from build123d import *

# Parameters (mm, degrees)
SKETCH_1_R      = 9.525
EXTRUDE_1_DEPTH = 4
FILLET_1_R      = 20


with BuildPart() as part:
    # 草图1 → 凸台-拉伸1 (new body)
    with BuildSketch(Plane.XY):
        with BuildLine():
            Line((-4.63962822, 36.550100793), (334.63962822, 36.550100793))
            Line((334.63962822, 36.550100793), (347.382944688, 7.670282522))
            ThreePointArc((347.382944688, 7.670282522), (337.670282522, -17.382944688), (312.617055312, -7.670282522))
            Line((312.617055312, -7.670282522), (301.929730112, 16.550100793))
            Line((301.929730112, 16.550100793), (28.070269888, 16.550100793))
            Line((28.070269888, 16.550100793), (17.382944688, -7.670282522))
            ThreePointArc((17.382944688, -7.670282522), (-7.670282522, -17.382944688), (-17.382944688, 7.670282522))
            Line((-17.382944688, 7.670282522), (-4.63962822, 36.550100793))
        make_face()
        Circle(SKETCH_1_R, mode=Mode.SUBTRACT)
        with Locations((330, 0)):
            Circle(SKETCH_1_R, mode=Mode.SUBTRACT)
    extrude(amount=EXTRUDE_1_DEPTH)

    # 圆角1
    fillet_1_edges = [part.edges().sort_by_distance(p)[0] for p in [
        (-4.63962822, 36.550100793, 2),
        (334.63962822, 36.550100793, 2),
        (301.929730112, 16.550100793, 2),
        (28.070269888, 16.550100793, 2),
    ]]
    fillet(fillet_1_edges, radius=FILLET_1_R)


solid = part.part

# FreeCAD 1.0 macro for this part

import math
import FreeCAD as App
import Part
import Sketcher
from FreeCAD import Vector


def edges_at(feature, points):
    """Names of the edges that pass closest to the given points."""
    edges = feature.Shape.Edges
    near = lambda p: min(range(len(edges)), key=lambda i: edges[i].distToShape(Part.Vertex(*p))[0])
    return sorted({f"Edge{near(p) + 1}" for p in points})

doc = App.newDocument("Part")
body = doc.addObject("PartDesign::Body", "Body")

sketch1 = body.newObject("Sketcher::SketchObject", "Sketch")
sketch1.AttachmentSupport = (doc.getObject("XY_Plane"), [""])
sketch1.MapMode = "FlatFace"
sketch1.addGeometry(Part.LineSegment(Vector(334.639628, 36.550101, 0), Vector(-4.639628, 36.550101, 0)), False)
sketch1.addGeometry(Part.LineSegment(Vector(-4.639628, 36.550101, 0), Vector(-17.382945, 7.670283, 0)), False)
sketch1.addGeometry(Part.ArcOfCircle(Part.Circle(Vector(0, 0, 0), Vector(0, 0, 1), 19), math.radians(156.19037), math.radians(336.19037)), False)
sketch1.addGeometry(Part.LineSegment(Vector(17.382945, -7.670283, 0), Vector(28.07027, 16.550101, 0)), False)
sketch1.addGeometry(Part.LineSegment(Vector(28.07027, 16.550101, 0), Vector(301.92973, 16.550101, 0)), False)
sketch1.addGeometry(Part.LineSegment(Vector(301.92973, 16.550101, 0), Vector(312.617055, -7.670283, 0)), False)
sketch1.addGeometry(Part.ArcOfCircle(Part.Circle(Vector(330, 0, 0), Vector(0, 0, 1), 19), math.radians(-156.19037), math.radians(23.80963)), False)
sketch1.addGeometry(Part.LineSegment(Vector(347.382945, 7.670283, 0), Vector(334.639628, 36.550101, 0)), False)
sketch1.addGeometry(Part.Circle(Vector(330, 0, 0), Vector(0, 0, 1), 9.525), False)
sketch1.addGeometry(Part.Circle(Vector(0, 0, 0), Vector(0, 0, 1), 9.525), False)
sketch1.addConstraint(Sketcher.Constraint("Coincident", 0, 2, 1, 1))
sketch1.addConstraint(Sketcher.Constraint("Tangent", 1, 2, 2, 1))
sketch1.addConstraint(Sketcher.Constraint("Tangent", 2, 2, 3, 1))
sketch1.addConstraint(Sketcher.Constraint("Coincident", 3, 2, 4, 1))
sketch1.addConstraint(Sketcher.Constraint("Coincident", 4, 2, 5, 1))
sketch1.addConstraint(Sketcher.Constraint("Tangent", 5, 2, 6, 1))
sketch1.addConstraint(Sketcher.Constraint("Tangent", 6, 2, 7, 1))
sketch1.addConstraint(Sketcher.Constraint("Coincident", 7, 2, 0, 1))
sketch1.addConstraint(Sketcher.Constraint("Horizontal", 0))
sketch1.addConstraint(Sketcher.Constraint("Horizontal", 4))
sketch1.addConstraint(Sketcher.Constraint("Coincident", 2, 3, -1, 1))
sketch1.addConstraint(Sketcher.Constraint("Coincident", 9, 3, -1, 1))
sketch1.addConstraint(Sketcher.Constraint("Coincident", 8, 3, 6, 3))
sketch1.addConstraint(Sketcher.Constraint("Equal", 2, 6))
sketch1.addConstraint(Sketcher.Constraint("Equal", 8, 9))
sketch1.addConstraint(Sketcher.Constraint("PointOnObject", 6, 3, -1))
sketch1.addConstraint(Sketcher.Constraint("Parallel", 1, 3))
sketch1.addConstraint(Sketcher.Constraint("Parallel", 5, 7))
sketch1.addConstraint(Sketcher.Constraint("Horizontal", 2, 2, 5, 2))
sketch1.addConstraint(Sketcher.Constraint("Radius", 2, 19.0))
sketch1.addConstraint(Sketcher.Constraint("Diameter", 8, 19.05))
sketch1.addConstraint(Sketcher.Constraint("DistanceX", -1, 1, 6, 3, 330.0))
sketch1.addConstraint(Sketcher.Constraint("DistanceY", 3, 2, 0, 2, 20.0))
sketch1.addConstraint(Sketcher.Constraint("DistanceX", 4, 1, 4, 2, 273.85946))
sketch1.addConstraint(Sketcher.Constraint("DistanceY", -1, 1, 0, 2, 36.550101))
pad1 = body.newObject("PartDesign::Pad", "Pad")
pad1.Profile = sketch1
pad1.Length = 4
doc.recompute()

fillet = body.newObject("PartDesign::Fillet", "Fillet")
fillet.Base = (pad1, edges_at(pad1, [
    (-4.64, 36.55, 2),
    (334.64, 36.55, 2),
    (301.93, 16.55, 2),
    (28.07, 16.55, 2),
]))
fillet.Radius = 20

doc.recompute()
